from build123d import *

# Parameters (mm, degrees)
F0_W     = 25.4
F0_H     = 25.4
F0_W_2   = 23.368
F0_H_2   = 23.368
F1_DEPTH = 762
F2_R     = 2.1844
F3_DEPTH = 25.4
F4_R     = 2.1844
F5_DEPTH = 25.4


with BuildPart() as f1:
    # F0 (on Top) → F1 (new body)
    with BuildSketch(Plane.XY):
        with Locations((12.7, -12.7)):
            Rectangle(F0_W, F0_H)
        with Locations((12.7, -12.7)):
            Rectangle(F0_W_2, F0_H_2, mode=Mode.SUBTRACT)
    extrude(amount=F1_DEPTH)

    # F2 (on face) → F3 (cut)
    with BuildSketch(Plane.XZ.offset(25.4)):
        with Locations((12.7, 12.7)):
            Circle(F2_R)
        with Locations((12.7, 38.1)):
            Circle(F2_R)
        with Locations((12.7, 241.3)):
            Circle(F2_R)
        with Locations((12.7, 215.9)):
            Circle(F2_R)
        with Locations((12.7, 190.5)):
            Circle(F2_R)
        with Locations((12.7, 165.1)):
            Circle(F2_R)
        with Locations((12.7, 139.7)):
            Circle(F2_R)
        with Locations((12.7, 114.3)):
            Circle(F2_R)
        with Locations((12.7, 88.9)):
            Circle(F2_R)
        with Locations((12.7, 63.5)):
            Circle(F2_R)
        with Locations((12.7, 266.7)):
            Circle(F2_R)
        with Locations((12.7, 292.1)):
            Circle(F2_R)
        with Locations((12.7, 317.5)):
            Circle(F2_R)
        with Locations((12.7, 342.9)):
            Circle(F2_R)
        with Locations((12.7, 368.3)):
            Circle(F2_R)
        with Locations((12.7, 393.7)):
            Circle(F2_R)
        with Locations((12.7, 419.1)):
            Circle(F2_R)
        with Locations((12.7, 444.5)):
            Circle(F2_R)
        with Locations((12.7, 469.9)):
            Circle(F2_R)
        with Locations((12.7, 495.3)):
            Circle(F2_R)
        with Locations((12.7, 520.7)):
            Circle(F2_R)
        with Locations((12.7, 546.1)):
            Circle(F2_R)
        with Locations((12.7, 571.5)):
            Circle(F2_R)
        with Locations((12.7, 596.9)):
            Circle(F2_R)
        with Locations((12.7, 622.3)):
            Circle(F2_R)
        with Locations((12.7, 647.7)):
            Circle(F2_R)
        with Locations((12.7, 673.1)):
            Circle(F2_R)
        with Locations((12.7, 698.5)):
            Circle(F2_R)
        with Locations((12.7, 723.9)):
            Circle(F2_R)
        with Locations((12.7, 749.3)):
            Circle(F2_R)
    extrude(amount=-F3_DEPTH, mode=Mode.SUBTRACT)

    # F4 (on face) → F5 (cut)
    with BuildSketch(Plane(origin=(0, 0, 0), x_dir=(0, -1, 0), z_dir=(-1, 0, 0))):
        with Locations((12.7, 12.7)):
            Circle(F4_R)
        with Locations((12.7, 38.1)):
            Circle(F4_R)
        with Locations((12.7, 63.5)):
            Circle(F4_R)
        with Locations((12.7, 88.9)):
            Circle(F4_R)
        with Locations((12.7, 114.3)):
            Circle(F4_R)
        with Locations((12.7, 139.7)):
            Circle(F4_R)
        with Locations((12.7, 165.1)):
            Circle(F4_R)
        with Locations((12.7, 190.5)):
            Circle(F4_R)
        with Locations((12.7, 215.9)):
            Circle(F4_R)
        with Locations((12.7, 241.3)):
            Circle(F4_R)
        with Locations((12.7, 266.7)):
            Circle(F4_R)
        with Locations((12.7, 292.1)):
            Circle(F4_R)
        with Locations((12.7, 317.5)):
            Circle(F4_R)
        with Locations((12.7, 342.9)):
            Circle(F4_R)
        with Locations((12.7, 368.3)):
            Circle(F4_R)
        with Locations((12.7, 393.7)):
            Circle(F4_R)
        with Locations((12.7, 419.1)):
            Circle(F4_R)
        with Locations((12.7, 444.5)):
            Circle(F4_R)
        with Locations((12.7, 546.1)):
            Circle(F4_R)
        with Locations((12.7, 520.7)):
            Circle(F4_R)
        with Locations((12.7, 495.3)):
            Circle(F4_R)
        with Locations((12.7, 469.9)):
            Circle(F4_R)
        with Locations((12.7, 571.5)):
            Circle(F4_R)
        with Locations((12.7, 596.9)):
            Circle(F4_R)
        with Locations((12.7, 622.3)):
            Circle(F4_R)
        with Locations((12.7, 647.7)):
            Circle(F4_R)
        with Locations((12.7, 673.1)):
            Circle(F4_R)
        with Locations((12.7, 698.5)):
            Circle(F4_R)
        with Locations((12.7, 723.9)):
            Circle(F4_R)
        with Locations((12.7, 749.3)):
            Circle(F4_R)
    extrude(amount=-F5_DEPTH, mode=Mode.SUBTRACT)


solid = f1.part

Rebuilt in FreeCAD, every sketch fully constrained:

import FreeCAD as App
import Part
import Sketcher
Q = App.Units.Quantity

doc = App.newDocument("Part")
params = doc.addObject("Spreadsheet::Sheet", "Params")
for row, (alias, value) in enumerate([
    ("sketch1_width", "1 in"),
    ("sketch1_width2", "0.92 in"),
    ("pad1_length", "30 in"),
    ("sketch2_diameter", "0.172 in"),
    ("pocket1_length", "1 in"),
    ("sketch3_diameter", "0.172 in"),
    ("pocket2_length", "1 in"),
], start=1):
    params.set(f"A{row}", alias)
    params.set(f"B{row}", "=" + value)
    params.setAlias(f"B{row}", alias)

body = doc.addObject("PartDesign::Body", "Body")

# Sketch on XY plane
sketch1 = doc.addObject("Sketcher::SketchObject", "Sketch")
body.addObject(sketch1)
sketch1.AttachmentSupport = (doc.XY_Plane, [""])
sketch1.MapMode = "FlatFace"
sketch1.addGeometry(Part.LineSegment(App.Vector(0, 0, 0), App.Vector(0, -25, 0)), False)
sketch1.addGeometry(Part.LineSegment(App.Vector(0, -25, 0), App.Vector(25, -25, 0)), False)
sketch1.addGeometry(Part.LineSegment(App.Vector(25, -25, 0), App.Vector(25, 0, 0)), False)
sketch1.addGeometry(Part.LineSegment(App.Vector(25, 0, 0), App.Vector(0, 0, 0)), False)
sketch1.addGeometry(Part.LineSegment(App.Vector(24, -24, 0), App.Vector(1, -24, 0)), False)
sketch1.addGeometry(Part.LineSegment(App.Vector(1, -24, 0), App.Vector(1, -1, 0)), False)
sketch1.addGeometry(Part.LineSegment(App.Vector(1, -1, 0), App.Vector(24, -1, 0)), False)
sketch1.addGeometry(Part.LineSegment(App.Vector(24, -1, 0), App.Vector(24, -24, 0)), False)
sketch1.addConstraint(Sketcher.Constraint("Coincident", 0, 2, 1, 1))
sketch1.addConstraint(Sketcher.Constraint("Coincident", 1, 2, 2, 1))
sketch1.addConstraint(Sketcher.Constraint("Coincident", 2, 2, 3, 1))
sketch1.addConstraint(Sketcher.Constraint("Coincident", 3, 2, 0, 1))
sketch1.addConstraint(Sketcher.Constraint("Coincident", 4, 2, 5, 1))
sketch1.addConstraint(Sketcher.Constraint("Coincident", 5, 2, 6, 1))
sketch1.addConstraint(Sketcher.Constraint("Coincident", 6, 2, 7, 1))
sketch1.addConstraint(Sketcher.Constraint("Coincident", 7, 2, 4, 1))
sketch1.addConstraint(Sketcher.Constraint("Vertical", 0))
sketch1.addConstraint(Sketcher.Constraint("Horizontal", 1))
sketch1.addConstraint(Sketcher.Constraint("Vertical", 2))
sketch1.addConstraint(Sketcher.Constraint("Horizontal", 3))
sketch1.addConstraint(Sketcher.Constraint("Horizontal", 4))
sketch1.addConstraint(Sketcher.Constraint("Vertical", 5))
sketch1.addConstraint(Sketcher.Constraint("Horizontal", 6))
sketch1.addConstraint(Sketcher.Constraint("Vertical", 7))
sketch1.addConstraint(Sketcher.Constraint("Coincident", 3, 2, -1, 1))
sketch1.addConstraint(Sketcher.Constraint("Equal", 3, 0))
sketch1.addConstraint(Sketcher.Constraint("Equal", 6, 5))
sketch1.addConstraint(Sketcher.Constraint("DistanceX", 1, 1, 1, 2, Q("1 in")))
sketch1.addConstraint(Sketcher.Constraint("DistanceX", 4, 2, 4, 1, Q("0.92 in")))
sketch1.addConstraint(Sketcher.Constraint("DistanceX", -1, 1, 4, 2, Q("0.04 in")))
sketch1.addConstraint(Sketcher.Constraint("DistanceY", 4, 2, -1, 1, Q("0.96 in")))
sketch1.setExpression("Constraints[19]", "Params.sketch1_width")
sketch1.setExpression("Constraints[20]", "Params.sketch1_width2")
pad1 = doc.addObject("PartDesign::Pad", "Pad")
body.addObject(pad1)
pad1.Profile = sketch1
pad1.setExpression("Length", "Params.pad1_length")

# Sketch on XZ plane
sketch2 = doc.addObject("Sketcher::SketchObject", "Sketch001")
body.addObject(sketch2)
sketch2.AttachmentSupport = (doc.XZ_Plane, [""])
sketch2.MapMode = "FlatFace"
sketch2.AttachmentOffset = App.Placement(App.Vector(0, 0, 1 * 25.4), App.Rotation())
sketch2.addGeometry(Part.Circle(App.Vector(12.7, 12.7, 0), App.Vector(0, 0, 1), 2.2), False)
sketch2.addGeometry(Part.Circle(App.Vector(12.7, 38.1, 0), App.Vector(0, 0, 1), 2.2), False)
sketch2.addGeometry(Part.Circle(App.Vector(12.7, 241.3, 0), App.Vector(0, 0, 1), 2.2), False)
sketch2.addGeometry(Part.Circle(App.Vector(12.7, 215.9, 0), App.Vector(0, 0, 1), 2.2), False)
sketch2.addGeometry(Part.Circle(App.Vector(12.7, 190.5, 0), App.Vector(0, 0, 1), 2.2), False)
sketch2.addGeometry(Part.Circle(App.Vector(12.7, 165.1, 0), App.Vector(0, 0, 1), 2.2), False)
sketch2.addGeometry(Part.Circle(App.Vector(12.7, 139.7, 0), App.Vector(0, 0, 1), 2.2), False)
sketch2.addGeometry(Part.Circle(App.Vector(12.7, 114.3, 0), App.Vector(0, 0, 1), 2.2), False)
sketch2.addGeometry(Part.Circle(App.Vector(12.7, 88.9, 0), App.Vector(0, 0, 1), 2.2), False)
sketch2.addGeometry(Part.Circle(App.Vector(12.7, 63.5, 0), App.Vector(0, 0, 1), 2.2), False)
sketch2.addGeometry(Part.Circle(App.Vector(12.7, 266.7, 0), App.Vector(0, 0, 1), 2.2), False)
sketch2.addGeometry(Part.Circle(App.Vector(12.7, 292.1, 0), App.Vector(0, 0, 1), 2.2), False)
sketch2.addGeometry(Part.Circle(App.Vector(12.7, 317.5, 0), App.Vector(0, 0, 1), 2.2), False)
sketch2.addGeometry(Part.Circle(App.Vector(12.7, 342.9, 0), App.Vector(0, 0, 1), 2.2), False)
sketch2.addGeometry(Part.Circle(App.Vector(12.7, 368.3, 0), App.Vector(0, 0, 1), 2.2), False)
sketch2.addGeometry(Part.Circle(App.Vector(12.7, 393.7, 0), App.Vector(0, 0, 1), 2.2), False)
sketch2.addGeometry(Part.Circle(App.Vector(12.7, 419.1, 0), App.Vector(0, 0, 1), 2.2), False)
sketch2.addGeometry(Part.Circle(App.Vector(12.7, 444.5, 0), App.Vector(0, 0, 1), 2.2), False)
sketch2.addGeometry(Part.Circle(App.Vector(12.7, 469.9, 0), App.Vector(0, 0, 1), 2.2), False)
sketch2.addGeometry(Part.Circle(App.Vector(12.7, 495.3, 0), App.Vector(0, 0, 1), 2.2), False)
sketch2.addGeometry(Part.Circle(App.Vector(12.7, 520.7, 0), App.Vector(0, 0, 1), 2.2), False)
sketch2.addGeometry(Part.Circle(App.Vector(12.7, 546.1, 0), App.Vector(0, 0, 1), 2.2), False)
sketch2.addGeometry(Part.Circle(App.Vector(12.7, 571.5, 0), App.Vector(0, 0, 1), 2.2), False)
sketch2.addGeometry(Part.Circle(App.Vector(12.7, 596.9, 0), App.Vector(0, 0, 1), 2.2), False)
sketch2.addGeometry(Part.Circle(App.Vector(12.7, 622.3, 0), App.Vector(0, 0, 1), 2.2), False)
sketch2.addGeometry(Part.Circle(App.Vector(12.7, 647.7, 0), App.Vector(0, 0, 1), 2.2), False)
sketch2.addGeometry(Part.Circle(App.Vector(12.7, 673.1, 0), App.Vector(0, 0, 1), 2.2), False)
sketch2.addGeometry(Part.Circle(App.Vector(12.7, 698.5, 0), App.Vector(0, 0, 1), 2.2), False)
sketch2.addGeometry(Part.Circle(App.Vector(12.7, 723.9, 0), App.Vector(0, 0, 1), 2.2), False)
sketch2.addGeometry(Part.Circle(App.Vector(12.7, 749.3, 0), App.Vector(0, 0, 1), 2.2), False)
sketch2.addConstraint(Sketcher.Constraint("Equal", 0, 1))
sketch2.addConstraint(Sketcher.Constraint("Equal", 1, 2))
sketch2.addConstraint(Sketcher.Constraint("Equal", 2, 3))
sketch2.addConstraint(Sketcher.Constraint("Equal", 3, 4))
sketch2.addConstraint(Sketcher.Constraint("Equal", 4, 5))
sketch2.addConstraint(Sketcher.Constraint("Equal", 5, 6))
sketch2.addConstraint(Sketcher.Constraint("Equal", 6, 7))
sketch2.addConstraint(Sketcher.Constraint("Equal", 7, 8))
sketch2.addConstraint(Sketcher.Constraint("Equal", 8, 9))
sketch2.addConstraint(Sketcher.Constraint("Equal", 9, 10))
sketch2.addConstraint(Sketcher.Constraint("Equal", 10, 11))
sketch2.addConstraint(Sketcher.Constraint("Equal", 11, 12))
sketch2.addConstraint(Sketcher.Constraint("Equal", 12, 13))
sketch2.addConstraint(Sketcher.Constraint("Equal", 13, 14))
sketch2.addConstraint(Sketcher.Constraint("Equal", 14, 15))
sketch2.addConstraint(Sketcher.Constraint("Equal", 15, 16))
sketch2.addConstraint(Sketcher.Constraint("Equal", 16, 17))
sketch2.addConstraint(Sketcher.Constraint("Equal", 17, 18))
sketch2.addConstraint(Sketcher.Constraint("Equal", 18, 19))
sketch2.addConstraint(Sketcher.Constraint("Equal", 19, 20))
sketch2.addConstraint(Sketcher.Constraint("Equal", 20, 21))
sketch2.addConstraint(Sketcher.Constraint("Equal", 21, 22))
sketch2.addConstraint(Sketcher.Constraint("Equal", 22, 23))
sketch2.addConstraint(Sketcher.Constraint("Equal", 23, 24))
sketch2.addConstraint(Sketcher.Constraint("Equal", 24, 25))
sketch2.addConstraint(Sketcher.Constraint("Equal", 25, 26))
sketch2.addConstraint(Sketcher.Constraint("Equal", 26, 27))
sketch2.addConstraint(Sketcher.Constraint("Equal", 27, 28))
sketch2.addConstraint(Sketcher.Constraint("Equal", 28, 29))
sketch2.addConstraint(Sketcher.Constraint("Vertical", 0, 3, 1, 3))
sketch2.addConstraint(Sketcher.Constraint("Vertical", 1, 3, 2, 3))
sketch2.addConstraint(Sketcher.Constraint("Vertical", 2, 3, 3, 3))
sketch2.addConstraint(Sketcher.Constraint("Vertical", 3, 3, 4, 3))
sketch2.addConstraint(Sketcher.Constraint("Vertical", 4, 3, 5, 3))
sketch2.addConstraint(Sketcher.Constraint("Vertical", 5, 3, 6, 3))
sketch2.addConstraint(Sketcher.Constraint("Vertical", 6, 3, 7, 3))
sketch2.addConstraint(Sketcher.Constraint("Vertical", 7, 3, 8, 3))
sketch2.addConstraint(Sketcher.Constraint("Vertical", 8, 3, 9, 3))
sketch2.addConstraint(Sketcher.Constraint("Vertical", 9, 3, 10, 3))
sketch2.addConstraint(Sketcher.Constraint("Vertical", 10, 3, 11, 3))
sketch2.addConstraint(Sketcher.Constraint("Vertical", 11, 3, 12, 3))
sketch2.addConstraint(Sketcher.Constraint("Vertical", 12, 3, 13, 3))
sketch2.addConstraint(Sketcher.Constraint("Vertical", 13, 3, 14, 3))
sketch2.addConstraint(Sketcher.Constraint("Vertical", 14, 3, 15, 3))
sketch2.addConstraint(Sketcher.Constraint("Vertical", 15, 3, 16, 3))
sketch2.addConstraint(Sketcher.Constraint("Vertical", 16, 3, 17, 3))
sketch2.addConstraint(Sketcher.Constraint("Vertical", 17, 3, 18, 3))
sketch2.addConstraint(Sketcher.Constraint("Vertical", 18, 3, 19, 3))
sketch2.addConstraint(Sketcher.Constraint("Vertical", 19, 3, 20, 3))
sketch2.addConstraint(Sketcher.Constraint("Vertical", 20, 3, 21, 3))
sketch2.addConstraint(Sketcher.Constraint("Vertical", 21, 3, 22, 3))
sketch2.addConstraint(Sketcher.Constraint("Vertical", 22, 3, 23, 3))
sketch2.addConstraint(Sketcher.Constraint("Vertical", 23, 3, 24, 3))
sketch2.addConstraint(Sketcher.Constraint("Vertical", 24, 3, 25, 3))
sketch2.addConstraint(Sketcher.Constraint("Vertical", 25, 3, 26, 3))
sketch2.addConstraint(Sketcher.Constraint("Vertical", 26, 3, 27, 3))
sketch2.addConstraint(Sketcher.Constraint("Vertical", 27, 3, 28, 3))
sketch2.addConstraint(Sketcher.Constraint("Vertical", 28, 3, 29, 3))
sketch2.addConstraint(Sketcher.Constraint("Diameter", 0, Q("0.172 in")))
sketch2.addConstraint(Sketcher.Constraint("DistanceY", 0, 3, 1, 3, Q("1 in")))
sketch2.addConstraint(Sketcher.Constraint("DistanceY", 1, 3, 2, 3, Q("8 in")))
sketch2.addConstraint(Sketcher.Constraint("DistanceY", 3, 3, 2, 3, Q("1 in")))
sketch2.addConstraint(Sketcher.Constraint("DistanceY", 4, 3, 3, 3, Q("1 in")))
sketch2.addConstraint(Sketcher.Constraint("DistanceY", 5, 3, 4, 3, Q("1 in")))
sketch2.addConstraint(Sketcher.Constraint("DistanceY", 6, 3, 5, 3, Q("1 in")))
sketch2.addConstraint(Sketcher.Constraint("DistanceY", 7, 3, 6, 3, Q("1 in")))
sketch2.addConstraint(Sketcher.Constraint("DistanceY", 8, 3, 7, 3, Q("1 in")))
sketch2.addConstraint(Sketcher.Constraint("DistanceY", 1, 3, 9, 3, Q("1 in")))
sketch2.addConstraint(Sketcher.Constraint("DistanceY", 2, 3, 10, 3, Q("1 in")))
sketch2.addConstraint(Sketcher.Constraint("DistanceY", 10, 3, 11, 3, Q("1 in")))
sketch2.addConstraint(Sketcher.Constraint("DistanceY", 11, 3, 12, 3, Q("1 in")))
sketch2.addConstraint(Sketcher.Constraint("DistanceY", 12, 3, 13, 3, Q("1 in")))
sketch2.addConstraint(Sketcher.Constraint("DistanceY", 13, 3, 14, 3, Q("1 in")))
sketch2.addConstraint(Sketcher.Constraint("DistanceY", 14, 3, 15, 3, Q("1 in")))
sketch2.addConstraint(Sketcher.Constraint("DistanceY", 15, 3, 16, 3, Q("1 in")))
sketch2.addConstraint(Sketcher.Constraint("DistanceY", 16, 3, 17, 3, Q("1 in")))
sketch2.addConstraint(Sketcher.Constraint("DistanceY", 17, 3, 18, 3, Q("1 in")))
sketch2.addConstraint(Sketcher.Constraint("DistanceY", 18, 3, 19, 3, Q("1 in")))
sketch2.addConstraint(Sketcher.Constraint("DistanceY", 19, 3, 20, 3, Q("1 in")))
sketch2.addConstraint(Sketcher.Constraint("DistanceY", 20, 3, 21, 3, Q("1 in")))
sketch2.addConstraint(Sketcher.Constraint("DistanceY", 21, 3, 22, 3, Q("1 in")))
sketch2.addConstraint(Sketcher.Constraint("DistanceY", 22, 3, 23, 3, Q("1 in")))
sketch2.addConstraint(Sketcher.Constraint("DistanceY", 23, 3, 24, 3, Q("1 in")))
sketch2.addConstraint(Sketcher.Constraint("DistanceY", 24, 3, 25, 3, Q("1 in")))
sketch2.addConstraint(Sketcher.Constraint("DistanceY", 25, 3, 26, 3, Q("1 in")))
sketch2.addConstraint(Sketcher.Constraint("DistanceY", 26, 3, 27, 3, Q("1 in")))
sketch2.addConstraint(Sketcher.Constraint("DistanceY", 27, 3, 28, 3, Q("1 in")))
sketch2.addConstraint(Sketcher.Constraint("DistanceY", 28, 3, 29, 3, Q("1 in")))
sketch2.addConstraint(Sketcher.Constraint("DistanceX", -1, 1, 0, 3, Q("0.5 in")))
sketch2.addConstraint(Sketcher.Constraint("DistanceY", -1, 1, 0, 3, Q("0.5 in")))
sketch2.setExpression("Constraints[58]", "Params.sketch2_diameter")
pocket1 = doc.addObject("PartDesign::Pocket", "Pocket")
body.addObject(pocket1)
pocket1.Profile = sketch2
pocket1.setExpression("Length", "Params.pocket1_length")

# Sketch on YZ plane
sketch3 = doc.addObject("Sketcher::SketchObject", "Sketch002")
body.addObject(sketch3)
sketch3.AttachmentSupport = (doc.YZ_Plane, [""])
sketch3.MapMode = "FlatFace"
sketch3.addGeometry(Part.Circle(App.Vector(-12.7, 12.7, 0), App.Vector(0, 0, 1), 2.2), False)
sketch3.addGeometry(Part.Circle(App.Vector(-12.7, 38.1, 0), App.Vector(0, 0, 1), 2.2), False)
sketch3.addGeometry(Part.Circle(App.Vector(-12.7, 63.5, 0), App.Vector(0, 0, 1), 2.2), False)
sketch3.addGeometry(Part.Circle(App.Vector(-12.7, 88.9, 0), App.Vector(0, 0, 1), 2.2), False)
sketch3.addGeometry(Part.Circle(App.Vector(-12.7, 114.3, 0), App.Vector(0, 0, 1), 2.2), False)
sketch3.addGeometry(Part.Circle(App.Vector(-12.7, 139.7, 0), App.Vector(0, 0, 1), 2.2), False)
sketch3.addGeometry(Part.Circle(App.Vector(-12.7, 165.1, 0), App.Vector(0, 0, 1), 2.2), False)
sketch3.addGeometry(Part.Circle(App.Vector(-12.7, 190.5, 0), App.Vector(0, 0, 1), 2.2), False)
sketch3.addGeometry(Part.Circle(App.Vector(-12.7, 215.9, 0), App.Vector(0, 0, 1), 2.2), False)
sketch3.addGeometry(Part.Circle(App.Vector(-12.7, 241.3, 0), App.Vector(0, 0, 1), 2.2), False)
sketch3.addGeometry(Part.Circle(App.Vector(-12.7, 266.7, 0), App.Vector(0, 0, 1), 2.2), False)
sketch3.addGeometry(Part.Circle(App.Vector(-12.7, 292.1, 0), App.Vector(0, 0, 1), 2.2), False)
sketch3.addGeometry(Part.Circle(App.Vector(-12.7, 317.5, 0), App.Vector(0, 0, 1), 2.2), False)
sketch3.addGeometry(Part.Circle(App.Vector(-12.7, 342.9, 0), App.Vector(0, 0, 1), 2.2), False)
sketch3.addGeometry(Part.Circle(App.Vector(-12.7, 368.3, 0), App.Vector(0, 0, 1), 2.2), False)
sketch3.addGeometry(Part.Circle(App.Vector(-12.7, 393.7, 0), App.Vector(0, 0, 1), 2.2), False)
sketch3.addGeometry(Part.Circle(App.Vector(-12.7, 419.1, 0), App.Vector(0, 0, 1), 2.2), False)
sketch3.addGeometry(Part.Circle(App.Vector(-12.7, 444.5, 0), App.Vector(0, 0, 1), 2.2), False)
sketch3.addGeometry(Part.Circle(App.Vector(-12.7, 546.1, 0), App.Vector(0, 0, 1), 2.2), False)
sketch3.addGeometry(Part.Circle(App.Vector(-12.7, 520.7, 0), App.Vector(0, 0, 1), 2.2), False)
sketch3.addGeometry(Part.Circle(App.Vector(-12.7, 495.3, 0), App.Vector(0, 0, 1), 2.2), False)
sketch3.addGeometry(Part.Circle(App.Vector(-12.7, 469.9, 0), App.Vector(0, 0, 1), 2.2), False)
sketch3.addGeometry(Part.Circle(App.Vector(-12.7, 571.5, 0), App.Vector(0, 0, 1), 2.2), False)
sketch3.addGeometry(Part.Circle(App.Vector(-12.7, 596.9, 0), App.Vector(0, 0, 1), 2.2), False)
sketch3.addGeometry(Part.Circle(App.Vector(-12.7, 622.3, 0), App.Vector(0, 0, 1), 2.2), False)
sketch3.addGeometry(Part.Circle(App.Vector(-12.7, 647.7, 0), App.Vector(0, 0, 1), 2.2), False)
sketch3.addGeometry(Part.Circle(App.Vector(-12.7, 673.1, 0), App.Vector(0, 0, 1), 2.2), False)
sketch3.addGeometry(Part.Circle(App.Vector(-12.7, 698.5, 0), App.Vector(0, 0, 1), 2.2), False)
sketch3.addGeometry(Part.Circle(App.Vector(-12.7, 723.9, 0), App.Vector(0, 0, 1), 2.2), False)
sketch3.addGeometry(Part.Circle(App.Vector(-12.7, 749.3, 0), App.Vector(0, 0, 1), 2.2), False)
sketch3.addConstraint(Sketcher.Constraint("Equal", 0, 1))
sketch3.addConstraint(Sketcher.Constraint("Equal", 1, 2))
sketch3.addConstraint(Sketcher.Constraint("Equal", 2, 3))
sketch3.addConstraint(Sketcher.Constraint("Equal", 3, 4))
sketch3.addConstraint(Sketcher.Constraint("Equal", 4, 5))
sketch3.addConstraint(Sketcher.Constraint("Equal", 5, 6))
sketch3.addConstraint(Sketcher.Constraint("Equal", 6, 7))
sketch3.addConstraint(Sketcher.Constraint("Equal", 7, 8))
sketch3.addConstraint(Sketcher.Constraint("Equal", 8, 9))
sketch3.addConstraint(Sketcher.Constraint("Equal", 9, 10))
sketch3.addConstraint(Sketcher.Constraint("Equal", 10, 11))
sketch3.addConstraint(Sketcher.Constraint("Equal", 11, 12))
sketch3.addConstraint(Sketcher.Constraint("Equal", 12, 13))
sketch3.addConstraint(Sketcher.Constraint("Equal", 13, 14))
sketch3.addConstraint(Sketcher.Constraint("Equal", 14, 15))
sketch3.addConstraint(Sketcher.Constraint("Equal", 15, 16))
sketch3.addConstraint(Sketcher.Constraint("Equal", 16, 17))
sketch3.addConstraint(Sketcher.Constraint("Equal", 17, 18))
sketch3.addConstraint(Sketcher.Constraint("Equal", 18, 19))
sketch3.addConstraint(Sketcher.Constraint("Equal", 19, 20))
sketch3.addConstraint(Sketcher.Constraint("Equal", 20, 21))
sketch3.addConstraint(Sketcher.Constraint("Equal", 21, 22))
sketch3.addConstraint(Sketcher.Constraint("Equal", 22, 23))
sketch3.addConstraint(Sketcher.Constraint("Equal", 23, 24))
sketch3.addConstraint(Sketcher.Constraint("Equal", 24, 25))
sketch3.addConstraint(Sketcher.Constraint("Equal", 25, 26))
sketch3.addConstraint(Sketcher.Constraint("Equal", 26, 27))
sketch3.addConstraint(Sketcher.Constraint("Equal", 27, 28))
sketch3.addConstraint(Sketcher.Constraint("Equal", 28, 29))
sketch3.addConstraint(Sketcher.Constraint("Vertical", 0, 3, 1, 3))
sketch3.addConstraint(Sketcher.Constraint("Vertical", 1, 3, 2, 3))
sketch3.addConstraint(Sketcher.Constraint("Vertical", 2, 3, 3, 3))
sketch3.addConstraint(Sketcher.Constraint("Vertical", 3, 3, 4, 3))
sketch3.addConstraint(Sketcher.Constraint("Vertical", 4, 3, 5, 3))
sketch3.addConstraint(Sketcher.Constraint("Vertical", 5, 3, 6, 3))
sketch3.addConstraint(Sketcher.Constraint("Vertical", 6, 3, 7, 3))
sketch3.addConstraint(Sketcher.Constraint("Vertical", 7, 3, 8, 3))
sketch3.addConstraint(Sketcher.Constraint("Vertical", 8, 3, 9, 3))
sketch3.addConstraint(Sketcher.Constraint("Vertical", 9, 3, 10, 3))
sketch3.addConstraint(Sketcher.Constraint("Vertical", 10, 3, 11, 3))
sketch3.addConstraint(Sketcher.Constraint("Vertical", 11, 3, 12, 3))
sketch3.addConstraint(Sketcher.Constraint("Vertical", 12, 3, 13, 3))
sketch3.addConstraint(Sketcher.Constraint("Vertical", 13, 3, 14, 3))
sketch3.addConstraint(Sketcher.Constraint("Vertical", 14, 3, 15, 3))
sketch3.addConstraint(Sketcher.Constraint("Vertical", 15, 3, 16, 3))
sketch3.addConstraint(Sketcher.Constraint("Vertical", 16, 3, 17, 3))
sketch3.addConstraint(Sketcher.Constraint("Vertical", 17, 3, 18, 3))
sketch3.addConstraint(Sketcher.Constraint("Vertical", 18, 3, 19, 3))
sketch3.addConstraint(Sketcher.Constraint("Vertical", 19, 3, 20, 3))
sketch3.addConstraint(Sketcher.Constraint("Vertical", 20, 3, 21, 3))
sketch3.addConstraint(Sketcher.Constraint("Vertical", 21, 3, 22, 3))
sketch3.addConstraint(Sketcher.Constraint("Vertical", 22, 3, 23, 3))
sketch3.addConstraint(Sketcher.Constraint("Vertical", 23, 3, 24, 3))
sketch3.addConstraint(Sketcher.Constraint("Vertical", 24, 3, 25, 3))
sketch3.addConstraint(Sketcher.Constraint("Vertical", 25, 3, 26, 3))
sketch3.addConstraint(Sketcher.Constraint("Vertical", 26, 3, 27, 3))
sketch3.addConstraint(Sketcher.Constraint("Vertical", 27, 3, 28, 3))
sketch3.addConstraint(Sketcher.Constraint("Vertical", 28, 3, 29, 3))
sketch3.addConstraint(Sketcher.Constraint("Diameter", 0, Q("0.172 in")))
sketch3.addConstraint(Sketcher.Constraint("DistanceY", 0, 3, 1, 3, Q("1 in")))
sketch3.addConstraint(Sketcher.Constraint("DistanceY", 1, 3, 2, 3, Q("1 in")))
sketch3.addConstraint(Sketcher.Constraint("DistanceY", 2, 3, 3, 3, Q("1 in")))
sketch3.addConstraint(Sketcher.Constraint("DistanceY", 3, 3, 4, 3, Q("1 in")))
sketch3.addConstraint(Sketcher.Constraint("DistanceY", 4, 3, 5, 3, Q("1 in")))
sketch3.addConstraint(Sketcher.Constraint("DistanceY", 5, 3, 6, 3, Q("1 in")))
sketch3.addConstraint(Sketcher.Constraint("DistanceY", 6, 3, 7, 3, Q("1 in")))
sketch3.addConstraint(Sketcher.Constraint("DistanceY", 7, 3, 8, 3, Q("1 in")))
sketch3.addConstraint(Sketcher.Constraint("DistanceY", 8, 3, 9, 3, Q("1 in")))
sketch3.addConstraint(Sketcher.Constraint("DistanceY", 9, 3, 10, 3, Q("1 in")))
sketch3.addConstraint(Sketcher.Constraint("DistanceY", 10, 3, 11, 3, Q("1 in")))
sketch3.addConstraint(Sketcher.Constraint("DistanceY", 11, 3, 12, 3, Q("1 in")))
sketch3.addConstraint(Sketcher.Constraint("DistanceY", 12, 3, 13, 3, Q("1 in")))
sketch3.addConstraint(Sketcher.Constraint("DistanceY", 13, 3, 14, 3, Q("1 in")))
sketch3.addConstraint(Sketcher.Constraint("DistanceY", 14, 3, 15, 3, Q("1 in")))
sketch3.addConstraint(Sketcher.Constraint("DistanceY", 15, 3, 16, 3, Q("1 in")))
sketch3.addConstraint(Sketcher.Constraint("DistanceY", 16, 3, 17, 3, Q("1 in")))
sketch3.addConstraint(Sketcher.Constraint("DistanceY", 17, 3, 18, 3, Q("4 in")))
sketch3.addConstraint(Sketcher.Constraint("DistanceY", 19, 3, 18, 3, Q("1 in")))
sketch3.addConstraint(Sketcher.Constraint("DistanceY", 20, 3, 19, 3, Q("1 in")))
sketch3.addConstraint(Sketcher.Constraint("DistanceY", 17, 3, 21, 3, Q("1 in")))
sketch3.addConstraint(Sketcher.Constraint("DistanceY", 18, 3, 22, 3, Q("1 in")))
sketch3.addConstraint(Sketcher.Constraint("DistanceY", 22, 3, 23, 3, Q("1 in")))
sketch3.addConstraint(Sketcher.Constraint("DistanceY", 23, 3, 24, 3, Q("1 in")))
sketch3.addConstraint(Sketcher.Constraint("DistanceY", 24, 3, 25, 3, Q("1 in")))
sketch3.addConstraint(Sketcher.Constraint("DistanceY", 25, 3, 26, 3, Q("1 in")))
sketch3.addConstraint(Sketcher.Constraint("DistanceY", 26, 3, 27, 3, Q("1 in")))
sketch3.addConstraint(Sketcher.Constraint("DistanceY", 27, 3, 28, 3, Q("1 in")))
sketch3.addConstraint(Sketcher.Constraint("DistanceY", 28, 3, 29, 3, Q("1 in")))
sketch3.addConstraint(Sketcher.Constraint("DistanceX", 0, 3, -1, 1, Q("0.5 in")))
sketch3.addConstraint(Sketcher.Constraint("DistanceY", -1, 1, 0, 3, Q("0.5 in")))
sketch3.setExpression("Constraints[58]", "Params.sketch3_diameter")
pocket2 = doc.addObject("PartDesign::Pocket", "Pocket001")
body.addObject(pocket2)
pocket2.Profile = sketch3
pocket2.setExpression("Length", "Params.pocket2_length")
pocket2.Reversed = True

doc.recompute()
